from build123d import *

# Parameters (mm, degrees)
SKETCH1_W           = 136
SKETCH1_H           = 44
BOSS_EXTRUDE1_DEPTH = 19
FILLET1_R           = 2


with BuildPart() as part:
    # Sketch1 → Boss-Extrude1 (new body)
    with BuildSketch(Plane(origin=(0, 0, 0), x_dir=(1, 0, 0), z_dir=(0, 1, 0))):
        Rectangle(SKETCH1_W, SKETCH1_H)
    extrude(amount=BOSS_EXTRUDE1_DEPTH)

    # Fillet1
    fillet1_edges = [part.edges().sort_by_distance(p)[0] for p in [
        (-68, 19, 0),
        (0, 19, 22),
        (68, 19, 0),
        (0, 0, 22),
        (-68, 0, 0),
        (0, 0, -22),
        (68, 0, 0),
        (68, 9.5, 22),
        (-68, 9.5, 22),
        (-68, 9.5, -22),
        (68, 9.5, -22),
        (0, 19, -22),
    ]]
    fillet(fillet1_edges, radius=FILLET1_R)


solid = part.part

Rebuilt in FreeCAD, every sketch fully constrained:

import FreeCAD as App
import Part
import Sketcher
from FreeCAD import Vector
Q = App.Units.Quantity


def add_polygon(sketch, points):
    """Adds a closed chain of lines whose ends are joined by coincident constraints."""
    first, n = sketch.GeometryCount, len(points)
    for a, b in zip(points, points[1:] + points[:1]):
        sketch.addGeometry(Part.LineSegment(App.Vector(*a, 0), App.Vector(*b, 0)), False)
    for i in range(n):
        sketch.addConstraint(Sketcher.Constraint("Coincident", first + i, 2, first + (i + 1) % n, 1))

doc = App.newDocument("Part")
body = doc.addObject("PartDesign::Body", "Body")

# Sketch on XZ plane
sketch1 = doc.addObject("Sketcher::SketchObject", "Sketch")
body.addObject(sketch1)
sketch1.AttachmentSupport = (doc.XZ_Plane, [""])
sketch1.MapMode = "FlatFace"
add_polygon(sketch1, [(-68, -22), (-68, 22), (68, 22), (68, -22)])  # lines 0-3
sketch1.addConstraint([
    Sketcher.Constraint("Vertical", 0),
    Sketcher.Constraint("Horizontal", 1),
    Sketcher.Constraint("Vertical", 2),
    Sketcher.Constraint("Horizontal", 3),
    Sketcher.Constraint("Symmetric", 0, 2, 2, 2, -1, 1),
    Sketcher.Constraint("DistanceX", 1, 1, 1, 2, Q("136 mm")),
    Sketcher.Constraint("DistanceY", 0, 1, 0, 2, Q("44 mm")),
])
pad1 = doc.addObject("PartDesign::Pad", "Pad")
body.addObject(pad1)
pad1.Profile = sketch1
pad1.Length = 19
pad1.Reversed = True
doc.recompute()

fillet = doc.addObject("PartDesign::Fillet", "Fillet")
body.addObject(fillet)
fillet.Base = (pad1, ["Edge1"])
fillet.UseAllEdges = True
fillet.Radius = 2

doc.recompute()
